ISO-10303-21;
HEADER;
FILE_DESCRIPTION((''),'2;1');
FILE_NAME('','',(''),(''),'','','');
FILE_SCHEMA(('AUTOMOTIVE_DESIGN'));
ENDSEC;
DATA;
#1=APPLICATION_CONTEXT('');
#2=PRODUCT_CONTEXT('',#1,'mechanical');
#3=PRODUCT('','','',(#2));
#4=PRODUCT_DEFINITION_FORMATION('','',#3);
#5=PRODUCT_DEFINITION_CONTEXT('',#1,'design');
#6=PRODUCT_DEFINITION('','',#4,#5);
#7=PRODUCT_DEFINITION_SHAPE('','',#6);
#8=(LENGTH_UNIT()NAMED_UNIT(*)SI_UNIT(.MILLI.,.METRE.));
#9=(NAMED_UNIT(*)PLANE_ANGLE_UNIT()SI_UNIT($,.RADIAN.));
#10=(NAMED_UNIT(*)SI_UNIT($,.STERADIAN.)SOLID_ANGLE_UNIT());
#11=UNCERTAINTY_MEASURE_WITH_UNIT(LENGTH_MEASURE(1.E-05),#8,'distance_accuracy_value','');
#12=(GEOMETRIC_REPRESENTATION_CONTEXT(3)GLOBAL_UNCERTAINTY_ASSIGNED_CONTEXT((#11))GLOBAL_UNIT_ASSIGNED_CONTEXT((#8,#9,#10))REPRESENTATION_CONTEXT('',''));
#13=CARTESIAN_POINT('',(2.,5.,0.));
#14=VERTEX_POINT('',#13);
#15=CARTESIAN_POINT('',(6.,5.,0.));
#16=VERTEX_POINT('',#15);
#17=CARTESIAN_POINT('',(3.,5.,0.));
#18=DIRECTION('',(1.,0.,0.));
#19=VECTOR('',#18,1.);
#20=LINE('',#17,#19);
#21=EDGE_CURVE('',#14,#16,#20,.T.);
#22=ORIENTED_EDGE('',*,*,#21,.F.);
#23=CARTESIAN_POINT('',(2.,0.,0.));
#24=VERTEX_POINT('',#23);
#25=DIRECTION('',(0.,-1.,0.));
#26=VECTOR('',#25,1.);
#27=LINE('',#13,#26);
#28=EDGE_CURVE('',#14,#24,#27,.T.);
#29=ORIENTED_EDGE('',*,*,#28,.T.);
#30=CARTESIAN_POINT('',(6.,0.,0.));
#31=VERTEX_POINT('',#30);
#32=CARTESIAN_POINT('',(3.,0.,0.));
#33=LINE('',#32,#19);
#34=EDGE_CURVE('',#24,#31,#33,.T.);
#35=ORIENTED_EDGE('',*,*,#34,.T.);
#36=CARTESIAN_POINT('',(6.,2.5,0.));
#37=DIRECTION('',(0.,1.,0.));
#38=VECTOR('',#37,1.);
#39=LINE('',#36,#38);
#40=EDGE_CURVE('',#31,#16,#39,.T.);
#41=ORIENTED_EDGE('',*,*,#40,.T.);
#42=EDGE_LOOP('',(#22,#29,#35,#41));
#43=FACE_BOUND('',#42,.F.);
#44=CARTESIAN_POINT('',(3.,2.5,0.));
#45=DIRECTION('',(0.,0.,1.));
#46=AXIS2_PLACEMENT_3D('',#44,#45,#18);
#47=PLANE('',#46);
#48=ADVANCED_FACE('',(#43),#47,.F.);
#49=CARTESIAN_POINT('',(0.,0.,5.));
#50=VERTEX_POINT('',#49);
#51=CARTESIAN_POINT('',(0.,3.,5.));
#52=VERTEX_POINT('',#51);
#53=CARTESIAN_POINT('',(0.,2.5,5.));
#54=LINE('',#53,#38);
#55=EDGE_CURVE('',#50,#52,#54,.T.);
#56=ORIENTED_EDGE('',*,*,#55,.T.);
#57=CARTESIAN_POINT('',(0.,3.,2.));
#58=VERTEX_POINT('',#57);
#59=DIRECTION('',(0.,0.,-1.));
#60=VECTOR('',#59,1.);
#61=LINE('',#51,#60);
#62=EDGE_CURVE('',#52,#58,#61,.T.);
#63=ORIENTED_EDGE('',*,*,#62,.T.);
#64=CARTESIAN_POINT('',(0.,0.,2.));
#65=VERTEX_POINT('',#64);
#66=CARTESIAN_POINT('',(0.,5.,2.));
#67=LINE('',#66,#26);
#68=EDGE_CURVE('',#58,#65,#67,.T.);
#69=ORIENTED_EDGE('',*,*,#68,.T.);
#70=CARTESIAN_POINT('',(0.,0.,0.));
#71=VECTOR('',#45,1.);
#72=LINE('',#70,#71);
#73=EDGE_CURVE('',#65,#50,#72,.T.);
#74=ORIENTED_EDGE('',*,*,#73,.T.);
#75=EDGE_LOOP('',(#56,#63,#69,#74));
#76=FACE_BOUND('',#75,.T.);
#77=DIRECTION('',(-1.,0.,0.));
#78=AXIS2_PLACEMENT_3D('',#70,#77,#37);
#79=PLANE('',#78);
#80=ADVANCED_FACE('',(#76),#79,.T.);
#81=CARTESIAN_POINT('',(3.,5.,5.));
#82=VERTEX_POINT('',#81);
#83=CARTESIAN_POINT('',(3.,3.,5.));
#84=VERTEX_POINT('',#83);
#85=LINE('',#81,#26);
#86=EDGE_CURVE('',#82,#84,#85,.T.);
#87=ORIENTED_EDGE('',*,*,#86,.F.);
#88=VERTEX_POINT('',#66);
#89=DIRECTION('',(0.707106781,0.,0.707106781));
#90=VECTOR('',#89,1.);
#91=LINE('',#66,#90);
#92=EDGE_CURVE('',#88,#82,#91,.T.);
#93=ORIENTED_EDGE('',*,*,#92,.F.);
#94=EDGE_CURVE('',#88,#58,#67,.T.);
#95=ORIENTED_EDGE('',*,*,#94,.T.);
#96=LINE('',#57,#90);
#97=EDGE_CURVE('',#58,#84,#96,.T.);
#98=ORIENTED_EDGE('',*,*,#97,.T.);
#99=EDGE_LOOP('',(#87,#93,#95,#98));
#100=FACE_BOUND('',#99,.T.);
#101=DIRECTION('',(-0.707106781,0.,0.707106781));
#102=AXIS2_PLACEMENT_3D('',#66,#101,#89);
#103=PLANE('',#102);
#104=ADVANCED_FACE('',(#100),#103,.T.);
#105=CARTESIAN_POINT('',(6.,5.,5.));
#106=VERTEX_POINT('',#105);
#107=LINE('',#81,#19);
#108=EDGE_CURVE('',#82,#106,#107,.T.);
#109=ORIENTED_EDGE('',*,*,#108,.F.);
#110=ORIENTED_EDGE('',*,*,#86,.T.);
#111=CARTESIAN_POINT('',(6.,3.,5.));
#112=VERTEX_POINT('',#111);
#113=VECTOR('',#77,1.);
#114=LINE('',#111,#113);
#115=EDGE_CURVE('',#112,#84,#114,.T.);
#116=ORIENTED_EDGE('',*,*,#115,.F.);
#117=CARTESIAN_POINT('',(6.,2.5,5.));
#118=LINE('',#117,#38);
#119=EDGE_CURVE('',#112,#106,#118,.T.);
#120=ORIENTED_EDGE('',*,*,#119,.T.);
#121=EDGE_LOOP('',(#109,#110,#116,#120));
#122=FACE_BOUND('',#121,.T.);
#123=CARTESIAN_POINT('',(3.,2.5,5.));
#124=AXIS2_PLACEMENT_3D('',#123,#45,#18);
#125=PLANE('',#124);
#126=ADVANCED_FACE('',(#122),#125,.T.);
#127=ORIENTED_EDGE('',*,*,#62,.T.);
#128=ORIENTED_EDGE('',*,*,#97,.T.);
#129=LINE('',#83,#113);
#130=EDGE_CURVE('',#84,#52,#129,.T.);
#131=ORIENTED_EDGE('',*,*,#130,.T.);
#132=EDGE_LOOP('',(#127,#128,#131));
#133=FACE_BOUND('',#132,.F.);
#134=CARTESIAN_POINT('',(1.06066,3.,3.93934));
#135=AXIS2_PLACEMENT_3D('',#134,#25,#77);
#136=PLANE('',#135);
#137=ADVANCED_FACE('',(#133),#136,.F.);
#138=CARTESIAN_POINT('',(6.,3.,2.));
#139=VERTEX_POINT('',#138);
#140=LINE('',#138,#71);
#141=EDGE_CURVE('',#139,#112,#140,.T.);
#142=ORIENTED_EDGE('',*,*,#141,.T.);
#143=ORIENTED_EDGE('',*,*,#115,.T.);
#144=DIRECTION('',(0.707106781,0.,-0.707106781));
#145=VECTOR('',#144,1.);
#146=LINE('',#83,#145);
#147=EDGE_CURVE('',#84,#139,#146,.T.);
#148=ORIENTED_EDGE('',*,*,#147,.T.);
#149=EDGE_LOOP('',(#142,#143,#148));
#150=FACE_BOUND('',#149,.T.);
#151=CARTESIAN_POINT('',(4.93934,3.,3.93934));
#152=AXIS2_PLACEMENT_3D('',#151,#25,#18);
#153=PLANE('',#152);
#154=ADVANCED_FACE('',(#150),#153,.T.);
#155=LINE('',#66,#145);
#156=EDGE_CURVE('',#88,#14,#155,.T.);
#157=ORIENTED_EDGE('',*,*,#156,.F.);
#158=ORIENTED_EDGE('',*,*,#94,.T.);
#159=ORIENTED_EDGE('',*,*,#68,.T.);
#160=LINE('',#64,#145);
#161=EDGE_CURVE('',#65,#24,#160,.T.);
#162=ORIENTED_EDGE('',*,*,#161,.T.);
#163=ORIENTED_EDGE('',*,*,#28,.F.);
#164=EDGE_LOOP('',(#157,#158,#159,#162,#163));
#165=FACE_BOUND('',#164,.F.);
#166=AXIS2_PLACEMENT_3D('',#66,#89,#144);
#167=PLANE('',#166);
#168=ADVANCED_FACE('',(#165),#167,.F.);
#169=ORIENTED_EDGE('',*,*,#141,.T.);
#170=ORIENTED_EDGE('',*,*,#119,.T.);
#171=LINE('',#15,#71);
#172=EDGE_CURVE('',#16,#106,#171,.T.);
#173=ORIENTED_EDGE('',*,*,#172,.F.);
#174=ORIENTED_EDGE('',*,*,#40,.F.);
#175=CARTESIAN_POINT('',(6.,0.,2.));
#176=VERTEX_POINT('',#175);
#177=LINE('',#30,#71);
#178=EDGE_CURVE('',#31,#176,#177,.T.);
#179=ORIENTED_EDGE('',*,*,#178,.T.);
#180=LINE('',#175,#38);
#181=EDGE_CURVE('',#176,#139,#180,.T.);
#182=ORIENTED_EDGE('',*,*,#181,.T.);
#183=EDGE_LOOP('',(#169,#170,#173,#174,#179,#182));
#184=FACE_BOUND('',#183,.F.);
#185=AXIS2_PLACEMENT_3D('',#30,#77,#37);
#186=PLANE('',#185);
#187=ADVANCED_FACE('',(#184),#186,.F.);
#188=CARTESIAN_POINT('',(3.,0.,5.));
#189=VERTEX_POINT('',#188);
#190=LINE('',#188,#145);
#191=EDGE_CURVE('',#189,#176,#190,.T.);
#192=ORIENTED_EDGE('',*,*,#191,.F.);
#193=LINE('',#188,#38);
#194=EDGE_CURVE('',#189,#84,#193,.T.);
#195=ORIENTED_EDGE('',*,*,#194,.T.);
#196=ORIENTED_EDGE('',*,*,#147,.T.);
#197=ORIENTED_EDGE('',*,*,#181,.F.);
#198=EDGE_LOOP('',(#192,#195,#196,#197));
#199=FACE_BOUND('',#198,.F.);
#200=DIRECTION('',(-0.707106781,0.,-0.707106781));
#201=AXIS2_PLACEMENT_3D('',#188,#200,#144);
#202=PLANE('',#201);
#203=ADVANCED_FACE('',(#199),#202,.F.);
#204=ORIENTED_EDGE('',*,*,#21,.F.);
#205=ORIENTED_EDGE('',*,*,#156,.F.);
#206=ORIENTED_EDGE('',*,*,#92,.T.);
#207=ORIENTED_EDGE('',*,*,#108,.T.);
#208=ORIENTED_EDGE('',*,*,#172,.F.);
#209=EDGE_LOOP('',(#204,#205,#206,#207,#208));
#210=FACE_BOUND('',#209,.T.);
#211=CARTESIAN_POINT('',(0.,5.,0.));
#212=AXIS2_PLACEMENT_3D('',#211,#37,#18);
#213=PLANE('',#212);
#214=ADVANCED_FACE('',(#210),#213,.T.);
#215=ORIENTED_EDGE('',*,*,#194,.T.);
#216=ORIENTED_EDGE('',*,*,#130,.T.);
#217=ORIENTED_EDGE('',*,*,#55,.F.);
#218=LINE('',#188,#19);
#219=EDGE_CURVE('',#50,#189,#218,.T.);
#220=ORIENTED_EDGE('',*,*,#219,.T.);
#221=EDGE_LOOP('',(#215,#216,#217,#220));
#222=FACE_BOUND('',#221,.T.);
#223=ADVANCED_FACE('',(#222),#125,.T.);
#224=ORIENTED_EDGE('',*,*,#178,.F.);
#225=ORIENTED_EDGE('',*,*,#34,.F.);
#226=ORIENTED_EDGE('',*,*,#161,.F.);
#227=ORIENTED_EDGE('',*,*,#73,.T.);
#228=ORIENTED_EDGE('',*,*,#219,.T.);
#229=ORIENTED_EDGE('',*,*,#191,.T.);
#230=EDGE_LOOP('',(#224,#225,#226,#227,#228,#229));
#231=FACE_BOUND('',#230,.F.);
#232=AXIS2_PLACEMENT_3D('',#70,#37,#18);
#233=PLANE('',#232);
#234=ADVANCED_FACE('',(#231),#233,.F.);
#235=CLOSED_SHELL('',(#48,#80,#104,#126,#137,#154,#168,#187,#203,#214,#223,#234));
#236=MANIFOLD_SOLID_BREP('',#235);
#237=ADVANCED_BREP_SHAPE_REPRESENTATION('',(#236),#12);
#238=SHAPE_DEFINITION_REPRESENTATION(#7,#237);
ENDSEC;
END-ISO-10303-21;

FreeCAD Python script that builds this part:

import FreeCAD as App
import Part
import Sketcher

V = App.Vector


def add_polygon(sketch, points):
    """Adds a closed chain of lines whose ends are joined by coincident constraints."""
    first, n = sketch.GeometryCount, len(points)
    for a, b in zip(points, points[1:] + points[:1]):
        sketch.addGeometry(Part.LineSegment(App.Vector(*a, 0), App.Vector(*b, 0)), False)
    for i in range(n):
        sketch.addConstraint(Sketcher.Constraint("Coincident", first + i, 2, first + (i + 1) % n, 1))

doc = App.newDocument("Part")
params = doc.addObject("Spreadsheet::Sheet", "Params")
for row, (alias, value) in enumerate([
    ("sketch1_width", "6 mm"),
    ("sketch1_height", "5 mm"),
    ("pad1_length", "5 mm"),
    ("sketch2_width", "2 mm"),
    ("pocket1_length", "5 mm"),
    ("sketch3_width", "3 mm"),
    ("pocket2_length", "2 mm"),
    ("sketch4_width", "3 mm"),
    ("pocket3_length", "3 mm"),
], start=1):
    params.set(f"A{row}", alias)
    params.set(f"B{row}", "=" + value)
    params.setAlias(f"B{row}", alias)

body = doc.addObject("PartDesign::Body", "Body")

# Sketch on XY plane
sketch1 = body.newObject("Sketcher::SketchObject", "Sketch")
sketch1.AttachmentSupport = (doc.getObject("XY_Plane"), [""])
sketch1.MapMode = "FlatFace"
add_polygon(sketch1, [(0, 5), (0, 0), (6, 0), (6, 5)])  # lines 0-3
sketch1.addConstraint(Sketcher.Constraint("Vertical", 0))
sketch1.addConstraint(Sketcher.Constraint("Horizontal", 1))
sketch1.addConstraint(Sketcher.Constraint("Vertical", 2))
sketch1.addConstraint(Sketcher.Constraint("Horizontal", 3))
sketch1.addConstraint(Sketcher.Constraint("Coincident", 0, 2, -1, 1))
sketch1.addConstraint(Sketcher.Constraint("DistanceX", 1, 1, 1, 2, 6.0))
sketch1.addConstraint(Sketcher.Constraint("DistanceY", 0, 2, 0, 1, 5.0))
sketch1.setExpression("Constraints[9]", "Params.sketch1_width")
sketch1.setExpression("Constraints[10]", "Params.sketch1_height")
pad1 = body.newObject("PartDesign::Pad", "Pad")
pad1.Profile = sketch1
pad1.setExpression("Length", "Params.pad1_length")

# Sketch on XZ plane
sketch2 = body.newObject("Sketcher::SketchObject", "Sketch001")
sketch2.AttachmentSupport = (doc.getObject("XZ_Plane"), [""])
sketch2.MapMode = "FlatFace"
sketch2.AttachmentOffset = App.Placement(V(0, 0, -5), App.Rotation())
add_polygon(sketch2, [(0, 2), (2, 0), (0, 0)])  # lines 0-2
sketch2.addConstraint(Sketcher.Constraint("Horizontal", 1))
sketch2.addConstraint(Sketcher.Constraint("Vertical", 2))
sketch2.addConstraint(Sketcher.Constraint("Coincident", 1, 2, -1, 1))
sketch2.addConstraint(Sketcher.Constraint("Equal", 1, 2))
sketch2.addConstraint(Sketcher.Constraint("DistanceX", 1, 2, 1, 1, 2.0))
sketch2.setExpression("Constraints[7]", "Params.sketch2_width")
pocket1 = body.newObject("PartDesign::Pocket", "Pocket")
pocket1.Profile = sketch2
pocket1.setExpression("Length", "Params.pocket1_length")
pocket1.Reversed = True

# Sketch on XZ plane
sketch3 = body.newObject("Sketcher::SketchObject", "Sketch002")
sketch3.AttachmentSupport = (doc.getObject("XZ_Plane"), [""])
sketch3.MapMode = "FlatFace"
sketch3.AttachmentOffset = App.Placement(V(0, 0, -5), App.Rotation())
add_polygon(sketch3, [(3, 5), (0, 2), (0, 5)])  # lines 0-2
sketch3.addConstraint(Sketcher.Constraint("Vertical", 1))
sketch3.addConstraint(Sketcher.Constraint("Horizontal", 2))
sketch3.addConstraint(Sketcher.Constraint("PointOnObject", 0, 2, -2))
sketch3.addConstraint(Sketcher.Constraint("Equal", 2, 1))
sketch3.addConstraint(Sketcher.Constraint("DistanceX", 2, 1, 2, 2, 3.0))
sketch3.addConstraint(Sketcher.Constraint("DistanceY", -1, 1, 0, 2, 2.0))
sketch3.setExpression("Constraints[7]", "Params.sketch3_width")
pocket2 = body.newObject("PartDesign::Pocket", "Pocket001")
pocket2.Profile = sketch3
pocket2.setExpression("Length", "Params.pocket2_length")
pocket2.Reversed = True

# Sketch on XZ plane
sketch4 = body.newObject("Sketcher::SketchObject", "Sketch003")
sketch4.AttachmentSupport = (doc.getObject("XZ_Plane"), [""])
sketch4.MapMode = "FlatFace"
add_polygon(sketch4, [(6, 5), (3, 5), (6, 2)])  # lines 0-2
sketch4.addConstraint(Sketcher.Constraint("Horizontal", 0))
sketch4.addConstraint(Sketcher.Constraint("Vertical", 2))
sketch4.addConstraint(Sketcher.Constraint("Equal", 0, 2))
sketch4.addConstraint(Sketcher.Constraint("DistanceX", 0, 2, 0, 1, 3.0))
sketch4.addConstraint(Sketcher.Constraint("DistanceX", -1, 1, 0, 2, 3.0))
sketch4.addConstraint(Sketcher.Constraint("DistanceY", -1, 1, 0, 2, 5.0))
sketch4.setExpression("Constraints[6]", "Params.sketch4_width")
pocket3 = body.newObject("PartDesign::Pocket", "Pocket002")
pocket3.Profile = sketch4
pocket3.setExpression("Length", "Params.pocket3_length")

doc.recompute()
